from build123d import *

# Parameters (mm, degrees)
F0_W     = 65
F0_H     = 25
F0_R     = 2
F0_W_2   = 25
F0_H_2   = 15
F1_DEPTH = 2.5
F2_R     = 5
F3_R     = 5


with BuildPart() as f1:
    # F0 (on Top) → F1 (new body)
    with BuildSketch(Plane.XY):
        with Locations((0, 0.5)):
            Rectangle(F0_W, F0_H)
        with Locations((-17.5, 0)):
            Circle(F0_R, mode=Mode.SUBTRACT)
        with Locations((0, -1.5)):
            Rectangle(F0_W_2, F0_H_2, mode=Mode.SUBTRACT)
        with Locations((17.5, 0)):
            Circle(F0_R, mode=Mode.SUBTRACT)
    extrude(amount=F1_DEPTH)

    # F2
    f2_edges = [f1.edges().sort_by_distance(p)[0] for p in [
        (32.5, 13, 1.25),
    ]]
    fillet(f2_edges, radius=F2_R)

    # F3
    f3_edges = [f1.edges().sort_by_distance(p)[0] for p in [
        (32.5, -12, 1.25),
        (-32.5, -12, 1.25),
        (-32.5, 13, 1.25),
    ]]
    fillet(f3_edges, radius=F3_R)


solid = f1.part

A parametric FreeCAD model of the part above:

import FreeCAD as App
import Part
import Sketcher
from FreeCAD import Vector
Q = App.Units.Quantity


def edges_at(feature, points):
    """Names of the edges that pass closest to the given points."""
    edges = feature.Shape.Edges
    near = lambda p: min(range(len(edges)), key=lambda i: edges[i].distToShape(Part.Vertex(*p))[0])
    return sorted({f"Edge{near(p) + 1}" for p in points})

doc = App.newDocument("Part")
body = doc.addObject("PartDesign::Body", "Body")

# Sketch on XY plane
sketch1 = body.newObject("Sketcher::SketchObject", "Sketch")
sketch1.AttachmentSupport = (doc.getObject("XY_Plane"), [""])
sketch1.MapMode = "FlatFace"
sketch1.addGeometry(Part.LineSegment(Vector(-32.5, 13, 0), Vector(-32.5, -12, 0)), False)
sketch1.addGeometry(Part.LineSegment(Vector(-32.5, -12, 0), Vector(32.5, -12, 0)), False)
sketch1.addGeometry(Part.LineSegment(Vector(32.5, -12, 0), Vector(32.5, 13, 0)), False)
sketch1.addGeometry(Part.LineSegment(Vector(32.5, 13, 0), Vector(-32.5, 13, 0)), False)
sketch1.addGeometry(Part.Circle(Vector(-17.5, 0, 0), Vector(0, 0, 1), 2), False)
sketch1.addGeometry(Part.LineSegment(Vector(12.5, -9, 0), Vector(-12.5, -9, 0)), False)
sketch1.addGeometry(Part.LineSegment(Vector(-12.5, -9, 0), Vector(-12.5, 6, 0)), False)
sketch1.addGeometry(Part.LineSegment(Vector(-12.5, 6, 0), Vector(12.5, 6, 0)), False)
sketch1.addGeometry(Part.LineSegment(Vector(12.5, 6, 0), Vector(12.5, -9, 0)), False)
sketch1.addGeometry(Part.Circle(Vector(17.5, 0, 0), Vector(0, 0, 1), 2), False)
sketch1.addConstraint(Sketcher.Constraint("Coincident", 0, 2, 1, 1))
sketch1.addConstraint(Sketcher.Constraint("Coincident", 1, 2, 2, 1))
sketch1.addConstraint(Sketcher.Constraint("Coincident", 2, 2, 3, 1))
sketch1.addConstraint(Sketcher.Constraint("Coincident", 3, 2, 0, 1))
sketch1.addConstraint(Sketcher.Constraint("Coincident", 5, 2, 6, 1))
sketch1.addConstraint(Sketcher.Constraint("Coincident", 6, 2, 7, 1))
sketch1.addConstraint(Sketcher.Constraint("Coincident", 7, 2, 8, 1))
sketch1.addConstraint(Sketcher.Constraint("Coincident", 8, 2, 5, 1))
sketch1.addConstraint(Sketcher.Constraint("Vertical", 0))
sketch1.addConstraint(Sketcher.Constraint("Horizontal", 1))
sketch1.addConstraint(Sketcher.Constraint("Vertical", 2))
sketch1.addConstraint(Sketcher.Constraint("Horizontal", 3))
sketch1.addConstraint(Sketcher.Constraint("Horizontal", 5))
sketch1.addConstraint(Sketcher.Constraint("Vertical", 6))
sketch1.addConstraint(Sketcher.Constraint("Horizontal", 7))
sketch1.addConstraint(Sketcher.Constraint("Vertical", 8))
sketch1.addConstraint(Sketcher.Constraint("Equal", 4, 9))
sketch1.addConstraint(Sketcher.Constraint("Symmetric", 4, 3, 9, 3, -1, 1))
sketch1.addConstraint(Sketcher.Constraint("PointOnObject", 4, 3, -1))
sketch1.addConstraint(Sketcher.Constraint("Equal", 7, 0))
sketch1.addConstraint(Sketcher.Constraint("Diameter", 4, Q("4 mm")))
sketch1.addConstraint(Sketcher.Constraint("DistanceX", 1, 1, 1, 2, Q("65 mm")))
sketch1.addConstraint(Sketcher.Constraint("DistanceX", 5, 2, 5, 1, Q("25 mm")))
sketch1.addConstraint(Sketcher.Constraint("DistanceY", 6, 1, 6, 2, Q("15 mm")))
sketch1.addConstraint(Sketcher.Constraint("DistanceY", 0, 2, -1, 1, Q("12 mm")))
sketch1.addConstraint(Sketcher.Constraint("DistanceY", 5, 2, -1, 1, Q("9 mm")))
sketch1.addConstraint(Sketcher.Constraint("DistanceX", 4, 3, 9, 3, Q("35 mm")))
sketch1.addConstraint(Sketcher.Constraint("DistanceX", 0, 2, 4, 3, Q("15 mm")))
sketch1.addConstraint(Sketcher.Constraint("DistanceX", 4, 3, 5, 2, Q("5 mm")))
pad1 = body.newObject("PartDesign::Pad", "Pad")
pad1.Profile = sketch1
pad1.Length = 2.5
doc.recompute()

fillet = body.newObject("PartDesign::Fillet", "Fillet")
fillet.Base = (pad1, edges_at(pad1, [(32.5, 13, 1.25)]))
fillet.Radius = 5
doc.recompute()

fillet2 = body.newObject("PartDesign::Fillet", "Fillet001")
fillet2.Base = (fillet, edges_at(fillet, [(32.5, -12, 1.25), (-32.5, -12, 1.25), (-32.5, 13, 1.25)]))
fillet2.Radius = 5

doc.recompute()
